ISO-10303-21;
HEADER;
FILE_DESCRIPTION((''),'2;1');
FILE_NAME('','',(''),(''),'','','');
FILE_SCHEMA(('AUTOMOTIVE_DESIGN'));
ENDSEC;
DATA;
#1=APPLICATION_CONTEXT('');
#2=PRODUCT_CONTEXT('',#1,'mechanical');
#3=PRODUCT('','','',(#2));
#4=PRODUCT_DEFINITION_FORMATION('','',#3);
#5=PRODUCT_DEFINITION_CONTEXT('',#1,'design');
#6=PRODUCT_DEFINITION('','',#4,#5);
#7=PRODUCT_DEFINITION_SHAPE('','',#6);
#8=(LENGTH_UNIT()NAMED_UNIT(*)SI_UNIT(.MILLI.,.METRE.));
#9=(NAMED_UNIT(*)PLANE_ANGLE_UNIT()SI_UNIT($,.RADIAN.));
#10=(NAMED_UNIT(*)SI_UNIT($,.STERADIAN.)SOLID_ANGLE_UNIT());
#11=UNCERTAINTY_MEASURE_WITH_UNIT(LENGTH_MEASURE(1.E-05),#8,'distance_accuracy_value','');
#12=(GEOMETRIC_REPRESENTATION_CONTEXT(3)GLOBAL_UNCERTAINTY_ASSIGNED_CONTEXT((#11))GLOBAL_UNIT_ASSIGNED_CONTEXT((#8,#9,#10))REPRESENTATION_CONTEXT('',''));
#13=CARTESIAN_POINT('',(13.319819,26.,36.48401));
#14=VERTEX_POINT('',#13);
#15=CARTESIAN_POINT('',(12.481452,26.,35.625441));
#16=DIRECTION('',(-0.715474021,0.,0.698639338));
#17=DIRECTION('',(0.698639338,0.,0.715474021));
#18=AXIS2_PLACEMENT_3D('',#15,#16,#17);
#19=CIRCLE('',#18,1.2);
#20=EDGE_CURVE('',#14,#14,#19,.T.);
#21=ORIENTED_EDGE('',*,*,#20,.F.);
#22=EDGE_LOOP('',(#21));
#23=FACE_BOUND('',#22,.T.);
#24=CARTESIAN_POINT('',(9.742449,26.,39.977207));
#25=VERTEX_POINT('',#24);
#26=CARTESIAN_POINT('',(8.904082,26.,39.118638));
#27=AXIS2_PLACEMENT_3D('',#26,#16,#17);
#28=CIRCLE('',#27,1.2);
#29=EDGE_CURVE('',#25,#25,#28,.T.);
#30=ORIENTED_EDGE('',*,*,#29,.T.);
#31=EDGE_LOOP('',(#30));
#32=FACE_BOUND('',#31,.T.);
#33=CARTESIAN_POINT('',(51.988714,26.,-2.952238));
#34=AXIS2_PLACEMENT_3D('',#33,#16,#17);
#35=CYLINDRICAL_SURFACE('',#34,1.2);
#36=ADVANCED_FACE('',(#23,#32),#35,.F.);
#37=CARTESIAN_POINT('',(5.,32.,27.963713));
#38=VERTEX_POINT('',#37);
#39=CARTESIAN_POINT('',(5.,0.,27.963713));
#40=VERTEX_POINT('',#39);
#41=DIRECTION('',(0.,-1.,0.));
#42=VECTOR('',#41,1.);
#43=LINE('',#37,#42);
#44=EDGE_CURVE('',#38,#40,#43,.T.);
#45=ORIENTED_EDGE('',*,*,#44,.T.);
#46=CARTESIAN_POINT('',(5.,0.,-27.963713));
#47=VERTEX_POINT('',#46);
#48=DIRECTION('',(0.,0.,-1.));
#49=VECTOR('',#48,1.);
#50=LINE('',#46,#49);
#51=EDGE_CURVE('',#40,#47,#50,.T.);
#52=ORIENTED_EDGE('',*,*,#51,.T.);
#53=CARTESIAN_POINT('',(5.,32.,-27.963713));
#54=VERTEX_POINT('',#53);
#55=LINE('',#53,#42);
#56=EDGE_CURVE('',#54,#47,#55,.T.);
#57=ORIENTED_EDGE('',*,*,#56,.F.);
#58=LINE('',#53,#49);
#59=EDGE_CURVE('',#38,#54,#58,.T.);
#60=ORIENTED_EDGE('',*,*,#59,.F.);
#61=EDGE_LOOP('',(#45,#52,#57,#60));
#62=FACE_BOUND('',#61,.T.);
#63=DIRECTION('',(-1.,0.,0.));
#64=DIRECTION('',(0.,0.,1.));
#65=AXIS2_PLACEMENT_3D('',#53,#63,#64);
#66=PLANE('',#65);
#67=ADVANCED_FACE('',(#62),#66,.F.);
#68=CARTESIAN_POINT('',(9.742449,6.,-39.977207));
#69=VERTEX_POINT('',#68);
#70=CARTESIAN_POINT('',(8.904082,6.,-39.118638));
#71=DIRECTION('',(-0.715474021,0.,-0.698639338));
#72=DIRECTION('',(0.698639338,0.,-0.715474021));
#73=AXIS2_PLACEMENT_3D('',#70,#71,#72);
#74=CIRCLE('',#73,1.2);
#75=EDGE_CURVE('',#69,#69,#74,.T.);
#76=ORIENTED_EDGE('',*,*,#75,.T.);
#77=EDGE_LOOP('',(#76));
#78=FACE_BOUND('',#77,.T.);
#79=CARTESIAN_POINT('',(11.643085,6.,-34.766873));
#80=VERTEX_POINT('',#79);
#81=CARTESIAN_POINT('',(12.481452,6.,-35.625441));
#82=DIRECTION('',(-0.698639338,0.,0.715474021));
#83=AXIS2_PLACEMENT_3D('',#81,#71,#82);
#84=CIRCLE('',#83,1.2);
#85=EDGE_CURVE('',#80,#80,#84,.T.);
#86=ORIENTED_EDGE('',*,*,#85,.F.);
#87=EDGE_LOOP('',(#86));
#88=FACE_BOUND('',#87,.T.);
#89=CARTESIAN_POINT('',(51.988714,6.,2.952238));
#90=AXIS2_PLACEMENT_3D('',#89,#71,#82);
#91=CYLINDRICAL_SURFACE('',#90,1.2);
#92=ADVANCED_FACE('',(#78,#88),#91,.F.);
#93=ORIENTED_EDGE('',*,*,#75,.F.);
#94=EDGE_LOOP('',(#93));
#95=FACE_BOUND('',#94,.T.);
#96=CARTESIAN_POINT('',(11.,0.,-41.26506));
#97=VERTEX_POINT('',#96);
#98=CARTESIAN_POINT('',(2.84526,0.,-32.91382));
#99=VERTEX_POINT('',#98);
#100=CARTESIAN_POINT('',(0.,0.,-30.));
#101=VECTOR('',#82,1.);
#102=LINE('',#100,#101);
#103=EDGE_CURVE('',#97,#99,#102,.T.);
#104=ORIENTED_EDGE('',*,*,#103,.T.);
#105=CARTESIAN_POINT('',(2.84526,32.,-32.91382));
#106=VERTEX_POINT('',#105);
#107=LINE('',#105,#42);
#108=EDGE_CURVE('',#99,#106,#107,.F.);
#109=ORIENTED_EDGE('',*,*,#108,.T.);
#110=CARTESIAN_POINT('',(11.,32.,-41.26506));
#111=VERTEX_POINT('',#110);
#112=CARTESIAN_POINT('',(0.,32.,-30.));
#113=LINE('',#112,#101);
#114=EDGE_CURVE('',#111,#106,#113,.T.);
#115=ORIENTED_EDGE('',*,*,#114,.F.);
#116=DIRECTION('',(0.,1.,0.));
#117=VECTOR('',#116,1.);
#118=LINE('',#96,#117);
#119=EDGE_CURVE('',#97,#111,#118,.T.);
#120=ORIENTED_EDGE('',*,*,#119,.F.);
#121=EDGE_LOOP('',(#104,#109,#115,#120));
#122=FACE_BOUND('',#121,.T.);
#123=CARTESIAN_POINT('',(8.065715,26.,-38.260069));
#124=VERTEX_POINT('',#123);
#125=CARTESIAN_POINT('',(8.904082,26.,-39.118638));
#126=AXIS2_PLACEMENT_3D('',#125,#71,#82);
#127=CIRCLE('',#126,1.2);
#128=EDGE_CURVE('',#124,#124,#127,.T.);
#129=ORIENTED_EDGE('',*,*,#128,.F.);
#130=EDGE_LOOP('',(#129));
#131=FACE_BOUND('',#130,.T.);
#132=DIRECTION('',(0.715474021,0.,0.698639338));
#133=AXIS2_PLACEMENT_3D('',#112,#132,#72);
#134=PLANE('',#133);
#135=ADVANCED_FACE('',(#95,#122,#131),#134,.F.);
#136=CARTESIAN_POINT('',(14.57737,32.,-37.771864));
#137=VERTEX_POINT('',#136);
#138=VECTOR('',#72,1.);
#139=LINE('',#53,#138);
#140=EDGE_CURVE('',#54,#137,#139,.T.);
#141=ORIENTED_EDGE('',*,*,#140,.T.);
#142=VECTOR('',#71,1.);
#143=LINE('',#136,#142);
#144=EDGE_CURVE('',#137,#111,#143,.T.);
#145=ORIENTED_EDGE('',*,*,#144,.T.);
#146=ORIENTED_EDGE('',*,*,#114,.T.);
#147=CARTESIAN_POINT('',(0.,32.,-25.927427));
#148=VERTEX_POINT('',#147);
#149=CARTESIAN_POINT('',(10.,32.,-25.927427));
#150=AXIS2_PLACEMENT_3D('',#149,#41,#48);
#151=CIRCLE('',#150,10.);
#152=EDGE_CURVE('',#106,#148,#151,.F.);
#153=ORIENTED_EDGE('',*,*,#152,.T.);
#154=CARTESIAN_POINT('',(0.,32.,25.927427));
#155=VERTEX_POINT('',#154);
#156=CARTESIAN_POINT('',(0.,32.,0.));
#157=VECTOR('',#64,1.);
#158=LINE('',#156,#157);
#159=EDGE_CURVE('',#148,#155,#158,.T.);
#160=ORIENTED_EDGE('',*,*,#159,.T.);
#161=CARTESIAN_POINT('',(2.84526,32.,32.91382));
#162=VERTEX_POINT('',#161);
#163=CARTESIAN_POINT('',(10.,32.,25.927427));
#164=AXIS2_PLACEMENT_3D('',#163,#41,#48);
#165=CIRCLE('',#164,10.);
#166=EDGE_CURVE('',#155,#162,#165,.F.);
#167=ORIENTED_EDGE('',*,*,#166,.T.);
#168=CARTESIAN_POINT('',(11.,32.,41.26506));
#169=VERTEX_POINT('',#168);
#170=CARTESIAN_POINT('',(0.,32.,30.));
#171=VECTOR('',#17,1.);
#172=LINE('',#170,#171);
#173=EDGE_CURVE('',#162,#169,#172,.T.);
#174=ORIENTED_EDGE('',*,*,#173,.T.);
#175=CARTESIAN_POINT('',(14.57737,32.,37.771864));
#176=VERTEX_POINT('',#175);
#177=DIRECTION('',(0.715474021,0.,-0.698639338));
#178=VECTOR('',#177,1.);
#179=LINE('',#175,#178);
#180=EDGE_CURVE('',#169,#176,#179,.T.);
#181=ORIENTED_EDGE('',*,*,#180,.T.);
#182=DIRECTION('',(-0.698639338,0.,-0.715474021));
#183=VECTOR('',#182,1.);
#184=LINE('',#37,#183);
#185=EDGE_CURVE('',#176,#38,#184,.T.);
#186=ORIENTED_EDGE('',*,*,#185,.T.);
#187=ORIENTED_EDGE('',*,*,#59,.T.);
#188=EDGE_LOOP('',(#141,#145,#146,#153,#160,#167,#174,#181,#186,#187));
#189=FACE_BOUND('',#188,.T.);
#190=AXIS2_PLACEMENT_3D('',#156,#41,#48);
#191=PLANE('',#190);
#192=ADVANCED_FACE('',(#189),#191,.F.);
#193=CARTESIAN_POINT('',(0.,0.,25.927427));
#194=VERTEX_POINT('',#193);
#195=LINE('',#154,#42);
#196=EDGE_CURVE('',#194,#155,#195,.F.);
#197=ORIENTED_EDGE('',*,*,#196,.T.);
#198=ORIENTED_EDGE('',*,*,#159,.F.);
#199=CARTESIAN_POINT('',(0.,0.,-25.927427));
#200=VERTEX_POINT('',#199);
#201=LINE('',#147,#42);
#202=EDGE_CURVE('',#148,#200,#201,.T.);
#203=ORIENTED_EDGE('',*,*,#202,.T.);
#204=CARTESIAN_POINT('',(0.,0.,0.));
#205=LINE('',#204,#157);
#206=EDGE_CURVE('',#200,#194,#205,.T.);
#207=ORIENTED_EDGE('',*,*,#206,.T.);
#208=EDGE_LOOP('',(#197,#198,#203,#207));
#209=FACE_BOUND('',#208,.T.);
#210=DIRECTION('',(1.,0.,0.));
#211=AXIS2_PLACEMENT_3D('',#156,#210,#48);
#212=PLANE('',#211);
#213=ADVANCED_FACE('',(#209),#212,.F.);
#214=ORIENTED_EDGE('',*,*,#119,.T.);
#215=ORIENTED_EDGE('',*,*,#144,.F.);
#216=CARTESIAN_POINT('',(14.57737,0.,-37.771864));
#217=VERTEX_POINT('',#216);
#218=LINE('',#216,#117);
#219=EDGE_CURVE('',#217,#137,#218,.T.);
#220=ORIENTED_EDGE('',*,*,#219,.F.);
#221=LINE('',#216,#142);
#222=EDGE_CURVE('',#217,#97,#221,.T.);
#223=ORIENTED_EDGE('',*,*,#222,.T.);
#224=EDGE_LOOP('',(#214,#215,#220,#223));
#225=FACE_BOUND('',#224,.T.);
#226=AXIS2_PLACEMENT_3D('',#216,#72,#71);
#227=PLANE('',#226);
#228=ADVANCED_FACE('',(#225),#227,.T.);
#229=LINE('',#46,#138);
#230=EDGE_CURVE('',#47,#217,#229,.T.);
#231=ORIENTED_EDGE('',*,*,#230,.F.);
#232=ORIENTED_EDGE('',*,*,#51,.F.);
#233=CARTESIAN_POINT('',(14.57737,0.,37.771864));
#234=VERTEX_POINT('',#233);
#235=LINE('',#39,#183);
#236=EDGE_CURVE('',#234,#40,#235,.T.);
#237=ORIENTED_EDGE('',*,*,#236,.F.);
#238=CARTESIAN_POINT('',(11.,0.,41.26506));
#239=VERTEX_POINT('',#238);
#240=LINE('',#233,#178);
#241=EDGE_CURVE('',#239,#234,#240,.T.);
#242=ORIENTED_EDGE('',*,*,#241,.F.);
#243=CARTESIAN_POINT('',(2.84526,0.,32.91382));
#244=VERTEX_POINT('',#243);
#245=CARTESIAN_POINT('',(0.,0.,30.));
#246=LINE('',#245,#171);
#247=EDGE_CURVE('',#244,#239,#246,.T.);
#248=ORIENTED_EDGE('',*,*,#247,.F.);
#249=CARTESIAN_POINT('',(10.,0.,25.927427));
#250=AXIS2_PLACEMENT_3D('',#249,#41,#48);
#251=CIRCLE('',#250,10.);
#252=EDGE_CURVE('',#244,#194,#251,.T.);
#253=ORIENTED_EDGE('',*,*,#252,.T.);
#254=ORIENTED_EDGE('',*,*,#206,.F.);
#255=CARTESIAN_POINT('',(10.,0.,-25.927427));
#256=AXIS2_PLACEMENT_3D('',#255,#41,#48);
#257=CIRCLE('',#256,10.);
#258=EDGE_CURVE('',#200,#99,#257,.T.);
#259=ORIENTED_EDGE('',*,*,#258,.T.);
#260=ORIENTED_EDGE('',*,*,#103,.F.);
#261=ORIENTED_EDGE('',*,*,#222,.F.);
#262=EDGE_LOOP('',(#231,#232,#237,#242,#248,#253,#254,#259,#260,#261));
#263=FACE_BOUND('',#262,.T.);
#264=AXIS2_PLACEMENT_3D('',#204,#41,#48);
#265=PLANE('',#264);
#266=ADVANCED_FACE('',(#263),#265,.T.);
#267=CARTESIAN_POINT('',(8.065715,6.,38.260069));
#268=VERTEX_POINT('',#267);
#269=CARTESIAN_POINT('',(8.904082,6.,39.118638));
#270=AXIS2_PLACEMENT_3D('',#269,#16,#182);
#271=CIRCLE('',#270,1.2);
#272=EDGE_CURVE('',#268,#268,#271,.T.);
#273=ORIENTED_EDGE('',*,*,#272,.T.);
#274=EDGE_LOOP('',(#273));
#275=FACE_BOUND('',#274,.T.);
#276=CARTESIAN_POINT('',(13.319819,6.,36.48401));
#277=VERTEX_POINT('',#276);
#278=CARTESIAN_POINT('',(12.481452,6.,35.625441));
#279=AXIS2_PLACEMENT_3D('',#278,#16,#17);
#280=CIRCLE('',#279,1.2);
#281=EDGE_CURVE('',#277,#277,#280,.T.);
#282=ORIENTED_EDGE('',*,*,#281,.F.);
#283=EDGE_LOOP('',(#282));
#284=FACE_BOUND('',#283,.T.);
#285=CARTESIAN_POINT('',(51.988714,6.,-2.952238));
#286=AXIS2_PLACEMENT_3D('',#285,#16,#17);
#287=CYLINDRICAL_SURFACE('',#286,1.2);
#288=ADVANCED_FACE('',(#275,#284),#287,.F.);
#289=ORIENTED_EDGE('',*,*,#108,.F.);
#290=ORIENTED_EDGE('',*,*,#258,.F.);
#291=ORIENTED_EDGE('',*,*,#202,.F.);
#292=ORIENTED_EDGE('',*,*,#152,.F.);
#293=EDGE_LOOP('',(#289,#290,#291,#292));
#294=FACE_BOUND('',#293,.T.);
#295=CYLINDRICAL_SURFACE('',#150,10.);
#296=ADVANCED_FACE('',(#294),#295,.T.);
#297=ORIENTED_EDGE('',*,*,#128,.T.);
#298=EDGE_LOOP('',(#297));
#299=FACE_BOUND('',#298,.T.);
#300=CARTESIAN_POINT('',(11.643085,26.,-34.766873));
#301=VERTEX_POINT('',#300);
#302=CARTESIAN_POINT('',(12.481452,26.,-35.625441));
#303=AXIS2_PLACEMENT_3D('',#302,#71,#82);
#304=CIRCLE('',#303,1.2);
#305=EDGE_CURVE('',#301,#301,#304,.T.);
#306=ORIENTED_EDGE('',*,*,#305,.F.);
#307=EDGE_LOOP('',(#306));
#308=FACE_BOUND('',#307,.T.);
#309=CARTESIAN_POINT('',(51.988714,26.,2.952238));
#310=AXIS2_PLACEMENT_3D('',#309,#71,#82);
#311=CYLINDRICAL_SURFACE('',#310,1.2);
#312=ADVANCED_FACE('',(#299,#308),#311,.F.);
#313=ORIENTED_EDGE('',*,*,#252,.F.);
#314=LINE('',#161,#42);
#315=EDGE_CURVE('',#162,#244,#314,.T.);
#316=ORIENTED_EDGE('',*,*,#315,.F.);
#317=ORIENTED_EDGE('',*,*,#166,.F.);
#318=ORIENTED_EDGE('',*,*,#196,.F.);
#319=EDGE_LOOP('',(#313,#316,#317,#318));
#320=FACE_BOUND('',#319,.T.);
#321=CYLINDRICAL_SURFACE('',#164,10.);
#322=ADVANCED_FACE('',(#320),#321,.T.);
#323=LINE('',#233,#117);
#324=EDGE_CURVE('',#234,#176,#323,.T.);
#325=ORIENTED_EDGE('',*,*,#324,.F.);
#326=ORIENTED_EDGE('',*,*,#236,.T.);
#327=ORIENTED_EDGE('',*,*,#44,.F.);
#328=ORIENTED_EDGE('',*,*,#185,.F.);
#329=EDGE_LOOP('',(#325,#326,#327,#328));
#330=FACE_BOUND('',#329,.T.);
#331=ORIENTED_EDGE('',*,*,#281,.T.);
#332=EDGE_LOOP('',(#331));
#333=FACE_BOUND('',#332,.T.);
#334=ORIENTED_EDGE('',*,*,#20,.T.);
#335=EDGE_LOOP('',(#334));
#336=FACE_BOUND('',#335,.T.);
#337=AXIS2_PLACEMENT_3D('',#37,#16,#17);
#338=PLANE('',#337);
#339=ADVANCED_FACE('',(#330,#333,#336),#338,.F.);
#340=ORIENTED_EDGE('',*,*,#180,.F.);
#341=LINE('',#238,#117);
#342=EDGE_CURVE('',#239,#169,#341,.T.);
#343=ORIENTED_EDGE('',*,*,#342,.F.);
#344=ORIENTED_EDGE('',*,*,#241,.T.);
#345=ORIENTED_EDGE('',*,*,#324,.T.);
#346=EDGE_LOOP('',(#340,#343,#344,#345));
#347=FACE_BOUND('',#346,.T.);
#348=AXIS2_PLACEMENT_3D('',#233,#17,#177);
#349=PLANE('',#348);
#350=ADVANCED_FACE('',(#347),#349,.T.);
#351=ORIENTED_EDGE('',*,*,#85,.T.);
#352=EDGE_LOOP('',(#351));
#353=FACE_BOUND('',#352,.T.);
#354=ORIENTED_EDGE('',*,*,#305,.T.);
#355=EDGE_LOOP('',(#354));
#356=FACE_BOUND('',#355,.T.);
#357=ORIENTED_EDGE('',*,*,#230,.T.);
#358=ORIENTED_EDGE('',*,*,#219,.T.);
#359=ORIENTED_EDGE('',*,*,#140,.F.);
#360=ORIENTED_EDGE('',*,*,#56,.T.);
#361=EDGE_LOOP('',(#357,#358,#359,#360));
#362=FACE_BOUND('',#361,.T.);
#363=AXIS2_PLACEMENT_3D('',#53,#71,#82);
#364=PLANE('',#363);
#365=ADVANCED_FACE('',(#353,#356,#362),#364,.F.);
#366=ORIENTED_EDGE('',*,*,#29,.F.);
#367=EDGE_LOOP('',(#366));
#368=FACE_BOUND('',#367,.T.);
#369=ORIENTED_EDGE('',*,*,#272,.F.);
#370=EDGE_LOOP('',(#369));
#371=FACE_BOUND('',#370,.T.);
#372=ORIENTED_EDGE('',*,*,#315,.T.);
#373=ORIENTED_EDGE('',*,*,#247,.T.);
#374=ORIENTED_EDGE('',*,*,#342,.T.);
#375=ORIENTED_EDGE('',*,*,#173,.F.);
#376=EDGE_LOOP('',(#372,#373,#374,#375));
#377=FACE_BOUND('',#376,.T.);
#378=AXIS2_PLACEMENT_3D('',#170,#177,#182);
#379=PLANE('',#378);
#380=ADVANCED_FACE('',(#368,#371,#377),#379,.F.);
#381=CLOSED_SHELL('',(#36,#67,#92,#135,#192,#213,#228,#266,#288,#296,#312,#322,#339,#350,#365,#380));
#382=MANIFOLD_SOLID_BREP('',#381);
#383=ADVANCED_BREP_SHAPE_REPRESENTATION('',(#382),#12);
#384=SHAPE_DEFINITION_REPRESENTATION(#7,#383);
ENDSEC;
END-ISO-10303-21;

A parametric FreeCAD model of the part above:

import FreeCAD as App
import Part
import Sketcher

V = App.Vector


def edges_at(feature, points):
    """Names of the edges that pass closest to the given points."""
    edges = feature.Shape.Edges
    near = lambda p: min(range(len(edges)), key=lambda i: edges[i].distToShape(Part.Vertex(*p))[0])
    return sorted({f"Edge{near(p) + 1}" for p in points})

doc = App.newDocument("Part")
body = doc.addObject("PartDesign::Body", "Body")

# Sketch on XZ plane
sketch1 = doc.addObject("Sketcher::SketchObject", "Sketch")
body.addObject(sketch1)
sketch1.AttachmentSupport = (doc.XZ_Plane, [""])
sketch1.MapMode = "FlatFace"
sketch1.addGeometry([
    Part.LineSegment(V(0, -30, 0), V(0, 30, 0)),  # 0
    Part.LineSegment(V(0, 30, 0), V(83, 115, 0)),  # 1
    Part.LineSegment(V(83, 115, 0), V(83, 108, 0)),  # 2
    Part.LineSegment(V(83, 108, 0), V(5, 28, 0)),  # 3
    Part.LineSegment(V(5, 28, 0), V(5, -28, 0)),  # 4
    Part.LineSegment(V(5, -28, 0), V(83, -108, 0)),  # 5
    Part.LineSegment(V(83, -108, 0), V(83, -115, 0)),  # 6
    Part.LineSegment(V(83, -115, 0), V(0, -30, 0)),  # 7
], False)
sketch1.addConstraint([
    Sketcher.Constraint("Coincident", 0, 2, 1, 1),
    Sketcher.Constraint("Coincident", 1, 2, 2, 1),
    Sketcher.Constraint("Coincident", 2, 2, 3, 1),
    Sketcher.Constraint("Coincident", 3, 2, 4, 1),
    Sketcher.Constraint("Coincident", 4, 2, 5, 1),
    Sketcher.Constraint("Coincident", 5, 2, 6, 1),
    Sketcher.Constraint("Coincident", 6, 2, 7, 1),
    Sketcher.Constraint("Coincident", 7, 2, 0, 1),
    Sketcher.Constraint("Vertical", 0),
    Sketcher.Constraint("Vertical", 2),
    Sketcher.Constraint("Vertical", 4),
    Sketcher.Constraint("Vertical", 6),
    Sketcher.Constraint("Symmetric", 0, 2, 7, 2, -1, 1),
    Sketcher.Constraint("Symmetric", 2, 2, 5, 2, -1),
    Sketcher.Constraint("Parallel", 1, 3),
    Sketcher.Constraint("Parallel", 5, 7),
    Sketcher.Constraint("Equal", 2, 6),
    Sketcher.Constraint("DistanceY", 0, 1, 0, 2, 60.0),
    Sketcher.Constraint("DistanceX", -1, 1, 1, 2, 83.0),
    Sketcher.Constraint("DistanceY", -1, 1, 1, 2, 115.0),
    Sketcher.Constraint("DistanceX", -1, 1, 3, 2, 5.0),
    Sketcher.Constraint("DistanceY", 2, 2, 2, 1, 7.156768),
])
pad1 = doc.addObject("PartDesign::Pad", "Pad")
body.addObject(pad1)
pad1.Profile = sketch1
pad1.Length = 32
pad1.Reversed = True
doc.recompute()

fillet = doc.addObject("PartDesign::Fillet", "Fillet")
body.addObject(fillet)
fillet.Base = (pad1, edges_at(pad1, [(0, 16, 30), (0, 16, -30)]))
fillet.Radius = 10

# Sketch on XZ plane
sketch2 = doc.addObject("Sketcher::SketchObject", "Sketch001")
body.addObject(sketch2)
sketch2.AttachmentSupport = (doc.XZ_Plane, [""])
sketch2.MapMode = "FlatFace"
sketch2.AttachmentOffset = App.Placement(V(0, 0, -32), App.Rotation())
sketch2.addGeometry([
    Part.LineSegment(V(-49, -125, 0), V(-49, 133, 0)),  # 0
    Part.LineSegment(V(-49, 133, 0), V(121, 133, 0)),  # 1
    Part.LineSegment(V(121, 133, 0), V(121, -125, 0)),  # 2
    Part.LineSegment(V(121, -125, 0), V(-49, -125, 0)),  # 3
    Part.LineSegment(V(15, -38, 0), V(15, 38, 0)),  # 4
    Part.LineSegment(V(15, 38, 0), V(11, 41, 0)),  # 5
    Part.LineSegment(V(11, 41, 0), V(0, 41, 0)),  # 6
    Part.LineSegment(V(0, 41, 0), V(0, -41, 0)),  # 7
    Part.LineSegment(V(0, -41, 0), V(11, -41, 0)),  # 8
    Part.LineSegment(V(11, -41, 0), V(15, -38, 0)),  # 9
], False)
sketch2.addConstraint([
    Sketcher.Constraint("Coincident", 0, 2, 1, 1),
    Sketcher.Constraint("Coincident", 1, 2, 2, 1),
    Sketcher.Constraint("Coincident", 2, 2, 3, 1),
    Sketcher.Constraint("Coincident", 3, 2, 0, 1),
    Sketcher.Constraint("Coincident", 4, 2, 5, 1),
    Sketcher.Constraint("Coincident", 5, 2, 6, 1),
    Sketcher.Constraint("Coincident", 6, 2, 7, 1),
    Sketcher.Constraint("Coincident", 7, 2, 8, 1),
    Sketcher.Constraint("Coincident", 8, 2, 9, 1),
    Sketcher.Constraint("Coincident", 9, 2, 4, 1),
    Sketcher.Constraint("Vertical", 0),
    Sketcher.Constraint("Horizontal", 1),
    Sketcher.Constraint("Vertical", 2),
    Sketcher.Constraint("Horizontal", 3),
    Sketcher.Constraint("Vertical", 4),
    Sketcher.Constraint("Horizontal", 6),
    Sketcher.Constraint("Vertical", 7),
    Sketcher.Constraint("Horizontal", 8),
    Sketcher.Constraint("Symmetric", 6, 2, 7, 2, -1, 1),
    Sketcher.Constraint("Vertical", 5, 2, 8, 2),
    Sketcher.Constraint("Equal", 5, 9),
    Sketcher.Constraint("DistanceX", 6, 2, 6, 1, 11.0),
    Sketcher.Constraint("Distance", 5, 5.0),
    Sketcher.Constraint("DistanceX", 1, 1, 1, 2, 170.11041),
    Sketcher.Constraint("DistanceY", 7, 2, 7, 1, 82.53012),
    Sketcher.Constraint("DistanceY", 0, 1, 0, 2, 258.008077),
    Sketcher.Constraint("DistanceY", 4, 1, 4, 2, 75.543727),
    Sketcher.Constraint("DistanceY", -1, 1, 0, 2, 133.05101),
    Sketcher.Constraint("DistanceX", 0, 2, -1, 1, 49.419985),
])
pocket1 = doc.addObject("PartDesign::Pocket", "Pocket")
body.addObject(pocket1)
pocket1.Profile = sketch2
pocket1.Type = "ThroughAll"
pocket1.Reversed = True

# Sketch on an angled plane
sketch3 = doc.addObject("Sketcher::SketchObject", "Sketch002")
body.addObject(sketch3)
sketch3.Placement = App.Placement(V(-14.995749, 0, -14.642908), App.Rotation(V(-0.698639338, 0, 0.715474021), V(0, 0.999999999, 0), V(-0.715474021, 0, -0.698639338), "ZXY"))
sketch3.addGeometry([
    Part.Circle(V(-34.2, 26, 0), V(0, 0, 1), 1.2),
    Part.Circle(V(-34.2, 6, 0), V(0, 0, 1), 1.2),
], False)
sketch3.addConstraint([
    Sketcher.Constraint("Equal", 0, 1),
    Sketcher.Constraint("Vertical", 0, 3, 1, 3),
    Sketcher.Constraint("Diameter", 0, 2.4),
    Sketcher.Constraint("DistanceY", -1, 1, 0, 3, 26.0),
    Sketcher.Constraint("DistanceY", -1, 1, 1, 3, 6.0),
    Sketcher.Constraint("DistanceX", 0, 3, -1, 1, 34.209111),
])
pocket2 = doc.addObject("PartDesign::Pocket", "Pocket001")
body.addObject(pocket2)
pocket2.Profile = sketch3
pocket2.Type = "ThroughAll"

# Sketch on an angled plane
sketch4 = doc.addObject("Sketcher::SketchObject", "Sketch003")
body.addObject(sketch4)
sketch4.Placement = App.Placement(V(-14.995749, 0, 14.642908), App.Rotation(V(0.698639338, 0, 0.715474021), V(0, 0.999999999, 0), V(-0.715474021, 0, 0.698639338), "ZXY"))
sketch4.addGeometry([
    Part.Circle(V(34.2, 26, 0), V(0, 0, 1), 1.2),
    Part.Circle(V(34.2, 6, 0), V(0, 0, 1), 1.2),
], False)
sketch4.addConstraint([
    Sketcher.Constraint("Equal", 0, 1),
    Sketcher.Constraint("Vertical", 0, 3, 1, 3),
    Sketcher.Constraint("Diameter", 0, 2.4),
    Sketcher.Constraint("DistanceY", -1, 1, 0, 3, 26.0),
    Sketcher.Constraint("DistanceY", -1, 1, 1, 3, 6.0),
    Sketcher.Constraint("DistanceX", -1, 1, 0, 3, 34.209111),
])
pocket3 = doc.addObject("PartDesign::Pocket", "Pocket002")
body.addObject(pocket3)
pocket3.Profile = sketch4
pocket3.Type = "ThroughAll"

doc.recompute()
